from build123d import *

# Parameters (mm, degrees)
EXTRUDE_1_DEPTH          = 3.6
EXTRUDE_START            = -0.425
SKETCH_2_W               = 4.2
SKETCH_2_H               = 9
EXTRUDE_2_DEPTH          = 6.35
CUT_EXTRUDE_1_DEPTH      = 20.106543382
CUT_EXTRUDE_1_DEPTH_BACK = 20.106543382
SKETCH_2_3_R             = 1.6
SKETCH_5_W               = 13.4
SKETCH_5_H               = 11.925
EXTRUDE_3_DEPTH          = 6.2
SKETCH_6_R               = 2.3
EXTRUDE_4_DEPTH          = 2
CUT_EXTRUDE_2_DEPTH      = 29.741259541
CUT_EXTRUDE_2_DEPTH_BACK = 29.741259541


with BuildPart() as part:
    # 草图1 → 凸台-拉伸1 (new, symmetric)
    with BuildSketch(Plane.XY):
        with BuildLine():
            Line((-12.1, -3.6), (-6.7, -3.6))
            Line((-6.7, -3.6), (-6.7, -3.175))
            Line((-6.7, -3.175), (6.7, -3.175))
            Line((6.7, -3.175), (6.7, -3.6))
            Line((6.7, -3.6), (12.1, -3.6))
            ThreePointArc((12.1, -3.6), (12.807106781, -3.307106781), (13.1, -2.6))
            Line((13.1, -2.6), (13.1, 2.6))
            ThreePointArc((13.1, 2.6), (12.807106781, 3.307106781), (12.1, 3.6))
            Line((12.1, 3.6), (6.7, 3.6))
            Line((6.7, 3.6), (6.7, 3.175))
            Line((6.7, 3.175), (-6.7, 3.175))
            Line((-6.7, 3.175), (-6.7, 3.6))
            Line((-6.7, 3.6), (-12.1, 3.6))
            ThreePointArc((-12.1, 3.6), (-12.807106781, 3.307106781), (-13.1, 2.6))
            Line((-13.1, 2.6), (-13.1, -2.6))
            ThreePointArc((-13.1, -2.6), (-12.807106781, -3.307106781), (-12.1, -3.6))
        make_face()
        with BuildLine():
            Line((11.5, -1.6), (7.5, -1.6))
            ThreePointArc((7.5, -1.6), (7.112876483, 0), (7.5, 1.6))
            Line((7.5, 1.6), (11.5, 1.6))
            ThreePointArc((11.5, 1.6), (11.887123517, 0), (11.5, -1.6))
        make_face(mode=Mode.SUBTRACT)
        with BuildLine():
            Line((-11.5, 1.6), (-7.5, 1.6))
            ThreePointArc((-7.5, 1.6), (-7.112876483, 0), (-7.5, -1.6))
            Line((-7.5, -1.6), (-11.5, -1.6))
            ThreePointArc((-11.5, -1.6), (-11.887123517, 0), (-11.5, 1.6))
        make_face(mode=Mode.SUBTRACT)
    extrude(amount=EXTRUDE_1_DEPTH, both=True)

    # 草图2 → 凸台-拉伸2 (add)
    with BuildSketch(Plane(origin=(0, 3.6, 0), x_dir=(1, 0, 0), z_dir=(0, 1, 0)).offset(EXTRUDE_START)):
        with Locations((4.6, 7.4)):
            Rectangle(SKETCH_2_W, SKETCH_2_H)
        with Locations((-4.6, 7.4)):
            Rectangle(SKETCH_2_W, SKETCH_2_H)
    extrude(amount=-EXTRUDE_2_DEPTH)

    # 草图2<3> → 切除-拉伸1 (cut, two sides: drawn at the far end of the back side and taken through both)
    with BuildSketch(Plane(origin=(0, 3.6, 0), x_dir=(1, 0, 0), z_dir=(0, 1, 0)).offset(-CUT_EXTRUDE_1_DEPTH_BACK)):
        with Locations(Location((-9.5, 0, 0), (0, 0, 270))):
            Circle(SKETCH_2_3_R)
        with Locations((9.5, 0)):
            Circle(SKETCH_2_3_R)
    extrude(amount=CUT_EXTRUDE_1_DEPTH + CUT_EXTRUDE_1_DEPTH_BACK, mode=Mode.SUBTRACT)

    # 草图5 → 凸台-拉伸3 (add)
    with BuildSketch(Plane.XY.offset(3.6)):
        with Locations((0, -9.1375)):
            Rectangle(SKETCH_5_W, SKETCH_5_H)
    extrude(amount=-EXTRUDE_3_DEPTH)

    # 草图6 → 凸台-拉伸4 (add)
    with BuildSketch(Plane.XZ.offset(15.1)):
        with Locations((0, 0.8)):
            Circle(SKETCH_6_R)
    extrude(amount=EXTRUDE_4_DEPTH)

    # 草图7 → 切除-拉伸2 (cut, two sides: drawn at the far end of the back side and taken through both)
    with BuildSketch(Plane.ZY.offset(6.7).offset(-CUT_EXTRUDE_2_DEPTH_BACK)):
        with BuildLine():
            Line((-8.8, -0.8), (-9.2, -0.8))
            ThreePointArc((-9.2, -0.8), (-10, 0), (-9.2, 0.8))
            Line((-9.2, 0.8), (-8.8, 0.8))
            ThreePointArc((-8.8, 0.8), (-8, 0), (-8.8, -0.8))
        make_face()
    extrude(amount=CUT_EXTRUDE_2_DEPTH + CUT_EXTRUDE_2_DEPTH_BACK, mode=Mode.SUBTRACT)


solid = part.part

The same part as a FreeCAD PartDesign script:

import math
import FreeCAD as App
import Part
import Sketcher

V = App.Vector
Q = App.Units.Quantity

doc = App.newDocument("Part")
body = doc.addObject("PartDesign::Body", "Body")

# Sketch on XY plane
sketch1 = body.newObject("Sketcher::SketchObject", "Sketch")
sketch1.AttachmentSupport = (doc.getObject("XY_Plane"), [""])
sketch1.MapMode = "FlatFace"
sketch1.addGeometry([
    Part.LineSegment(V(-12.1, -3.6, 0), V(-6.7, -3.6, 0)),  # 0
    Part.LineSegment(V(-6.7, -3.6, 0), V(-6.7, -3.17, 0)),  # 1
    Part.LineSegment(V(-6.7, -3.17, 0), V(6.7, -3.17, 0)),  # 2
    Part.LineSegment(V(6.7, -3.17, 0), V(6.7, -3.6, 0)),  # 3
    Part.LineSegment(V(6.7, -3.6, 0), V(12.1, -3.6, 0)),  # 4
    Part.ArcOfCircle(Part.Circle(V(12.1, -2.6, 0), V(0, 0, 1), 1), math.radians(-90), math.radians(0)),  # 5
    Part.LineSegment(V(13.1, -2.6, 0), V(13.1, 2.6, 0)),  # 6
    Part.ArcOfCircle(Part.Circle(V(12.1, 2.6, 0), V(0, 0, 1), 1), math.radians(0), math.radians(90)),  # 7
    Part.LineSegment(V(12.1, 3.6, 0), V(6.7, 3.6, 0)),  # 8
    Part.LineSegment(V(6.7, 3.6, 0), V(6.7, 3.17, 0)),  # 9
    Part.LineSegment(V(6.7, 3.17, 0), V(-6.7, 3.17, 0)),  # 10
    Part.LineSegment(V(-6.7, 3.17, 0), V(-6.7, 3.6, 0)),  # 11
    Part.LineSegment(V(-6.7, 3.6, 0), V(-12.1, 3.6, 0)),  # 12
    Part.ArcOfCircle(Part.Circle(V(-12.1, 2.6, 0), V(0, 0, 1), 1), math.radians(90), math.radians(180)),  # 13
    Part.LineSegment(V(-13.1, 2.6, 0), V(-13.1, -2.6, 0)),  # 14
    Part.ArcOfCircle(Part.Circle(V(-12.1, -2.6, 0), V(0, 0, 1), 1), math.radians(-180), math.radians(-90)),  # 15
    Part.ArcOfCircle(Part.Circle(V(-8.39, 0, 0), V(0, 0, 1), 3.5), math.radians(153), math.radians(207)),  # 16
    Part.LineSegment(V(-11.5, 1.6, 0), V(-7.5, 1.6, 0)),  # 17
    Part.ArcOfCircle(Part.Circle(V(-10.61, 0, 0), V(0, 0, 1), 3.5), math.radians(-27), math.radians(27)),  # 18
    Part.LineSegment(V(-7.5, -1.6, 0), V(-11.5, -1.6, 0)),  # 19
    Part.ArcOfCircle(Part.Circle(V(8.39, 0, 0), V(0, 0, 1), 3.5), math.radians(-27), math.radians(27)),  # 20
    Part.LineSegment(V(11.5, -1.6, 0), V(7.5, -1.6, 0)),  # 21
    Part.ArcOfCircle(Part.Circle(V(10.61, 0, 0), V(0, 0, 1), 3.5), math.radians(153), math.radians(207)),  # 22
    Part.LineSegment(V(7.5, 1.6, 0), V(11.5, 1.6, 0)),  # 23
], False)
sketch1.addConstraint([
    Sketcher.Constraint("Coincident", 0, 2, 1, 1),
    Sketcher.Constraint("Coincident", 1, 2, 2, 1),
    Sketcher.Constraint("Coincident", 2, 2, 3, 1),
    Sketcher.Constraint("Coincident", 3, 2, 4, 1),
    Sketcher.Constraint("Tangent", 4, 2, 5, 1),
    Sketcher.Constraint("Tangent", 5, 2, 6, 1),
    Sketcher.Constraint("Tangent", 6, 2, 7, 1),
    Sketcher.Constraint("Tangent", 7, 2, 8, 1),
    Sketcher.Constraint("Coincident", 8, 2, 9, 1),
    Sketcher.Constraint("Coincident", 9, 2, 10, 1),
    Sketcher.Constraint("Coincident", 10, 2, 11, 1),
    Sketcher.Constraint("Coincident", 11, 2, 12, 1),
    Sketcher.Constraint("Tangent", 12, 2, 13, 1),
    Sketcher.Constraint("Tangent", 13, 2, 14, 1),
    Sketcher.Constraint("Tangent", 14, 2, 15, 1),
    Sketcher.Constraint("Tangent", 15, 2, 0, 1),
    Sketcher.Constraint("Coincident", 16, 1, 17, 1),
    Sketcher.Constraint("Coincident", 17, 2, 18, 2),
    Sketcher.Constraint("Coincident", 18, 1, 19, 1),
    Sketcher.Constraint("Coincident", 19, 2, 16, 2),
    Sketcher.Constraint("Coincident", 20, 1, 21, 1),
    Sketcher.Constraint("Coincident", 21, 2, 22, 2),
    Sketcher.Constraint("Coincident", 22, 1, 23, 1),
    Sketcher.Constraint("Coincident", 23, 2, 20, 2),
    Sketcher.Constraint("Horizontal", 0),
    Sketcher.Constraint("Vertical", 1),
    Sketcher.Constraint("Horizontal", 2),
    Sketcher.Constraint("Vertical", 3),
    Sketcher.Constraint("Horizontal", 4),
    Sketcher.Constraint("Vertical", 6),
    Sketcher.Constraint("Horizontal", 8),
    Sketcher.Constraint("Vertical", 9),
    Sketcher.Constraint("Horizontal", 10),
    Sketcher.Constraint("Vertical", 11),
    Sketcher.Constraint("Horizontal", 12),
    Sketcher.Constraint("Vertical", 14),
    Sketcher.Constraint("Horizontal", 17),
    Sketcher.Constraint("Horizontal", 19),
    Sketcher.Constraint("Horizontal", 21),
    Sketcher.Constraint("Horizontal", 23),
    Sketcher.Constraint("Equal", 5, 7),
    Sketcher.Constraint("Equal", 7, 13),
    Sketcher.Constraint("Equal", 13, 15),
    Sketcher.Constraint("Equal", 16, 18),
    Sketcher.Constraint("Equal", 18, 20),
    Sketcher.Constraint("Equal", 20, 22),
    Sketcher.Constraint("Symmetric", 5, 3, 13, 3, -1, 1),
    Sketcher.Constraint("Symmetric", 16, 3, 20, 3, -1, 1),
    Sketcher.Constraint("Symmetric", 18, 3, 22, 3, -1, 1),
    Sketcher.Constraint("Symmetric", 0, 2, 8, 2, -1, 1),
    Sketcher.Constraint("Symmetric", 2, 2, 10, 2, -1, 1),
    Sketcher.Constraint("Symmetric", 0, 2, 3, 2, -2),
    Sketcher.Constraint("Symmetric", 19, 2, 20, 1, -2),
    Sketcher.Constraint("Symmetric", 17, 2, 22, 1, -2),
    Sketcher.Constraint("Vertical", 17, 2, 18, 1),
    Sketcher.Constraint("Radius", 5, Q("1 mm")),
    Sketcher.Constraint("Radius", 16, Q("3.5 mm")),
    Sketcher.Constraint("DistanceX", 17, 1, 17, 2, Q("4 mm")),
    Sketcher.Constraint("DistanceX", 0, 1, 0, 2, Q("5.4 mm")),
    Sketcher.Constraint("DistanceX", 2, 1, 2, 2, Q("13.4 mm")),
    Sketcher.Constraint("DistanceY", 6, 1, 6, 2, Q("5.2 mm")),
    Sketcher.Constraint("DistanceX", 18, 3, 20, 3, Q("19 mm")),
    Sketcher.Constraint("DistanceY", 16, 1, 13, 3, Q("1 mm")),
    Sketcher.Constraint("DistanceY", 1, 1, 1, 2, Q("0.425 mm")),
])
pad1 = body.newObject("PartDesign::Pad", "Pad")
pad1.Profile = sketch1
pad1.Length = 7.2
pad1.Midplane = True

# Sketch on XZ plane
sketch2 = body.newObject("Sketcher::SketchObject", "Sketch001")
sketch2.AttachmentSupport = (doc.getObject("XZ_Plane"), [""])
sketch2.MapMode = "FlatFace"
sketch2.AttachmentOffset = App.Placement(V(0, 0, -3.175), App.Rotation())
sketch2.addGeometry([
    Part.LineSegment(V(2.5, -11.9, 0), V(2.5, -2.9, 0)),  # 0
    Part.LineSegment(V(2.5, -2.9, 0), V(6.7, -2.9, 0)),  # 1
    Part.LineSegment(V(6.7, -2.9, 0), V(6.7, -11.9, 0)),  # 2
    Part.LineSegment(V(6.7, -11.9, 0), V(2.5, -11.9, 0)),  # 3
    Part.LineSegment(V(-6.7, -11.9, 0), V(-6.7, -2.9, 0)),  # 4
    Part.LineSegment(V(-6.7, -2.9, 0), V(-2.5, -2.9, 0)),  # 5
    Part.LineSegment(V(-2.5, -2.9, 0), V(-2.5, -11.9, 0)),  # 6
    Part.LineSegment(V(-2.5, -11.9, 0), V(-6.7, -11.9, 0)),  # 7
], False)
sketch2.addConstraint([
    Sketcher.Constraint("Coincident", 0, 2, 1, 1),
    Sketcher.Constraint("Coincident", 1, 2, 2, 1),
    Sketcher.Constraint("Coincident", 2, 2, 3, 1),
    Sketcher.Constraint("Coincident", 3, 2, 0, 1),
    Sketcher.Constraint("Coincident", 4, 2, 5, 1),
    Sketcher.Constraint("Coincident", 5, 2, 6, 1),
    Sketcher.Constraint("Coincident", 6, 2, 7, 1),
    Sketcher.Constraint("Coincident", 7, 2, 4, 1),
    Sketcher.Constraint("Vertical", 0),
    Sketcher.Constraint("Horizontal", 1),
    Sketcher.Constraint("Vertical", 2),
    Sketcher.Constraint("Horizontal", 3),
    Sketcher.Constraint("Vertical", 4),
    Sketcher.Constraint("Horizontal", 5),
    Sketcher.Constraint("Vertical", 6),
    Sketcher.Constraint("Horizontal", 7),
    Sketcher.Constraint("Symmetric", 1, 2, 4, 2, -2),
    Sketcher.Constraint("Symmetric", 3, 2, 6, 2, -2),
    Sketcher.Constraint("DistanceY", 0, 1, 0, 2, Q("9 mm")),
    Sketcher.Constraint("DistanceX", 1, 1, 1, 2, Q("4.2 mm")),
    Sketcher.Constraint("DistanceX", 5, 2, 0, 2, Q("5 mm")),
    Sketcher.Constraint("DistanceY", 0, 2, -1, 1, Q("2.9 mm")),
])
pad2 = body.newObject("PartDesign::Pad", "Pad001")
pad2.Profile = sketch2
pad2.Length = 6.35

# Sketch on XZ plane
sketch3 = body.newObject("Sketcher::SketchObject", "Sketch002")
sketch3.AttachmentSupport = (doc.getObject("XZ_Plane"), [""])
sketch3.MapMode = "FlatFace"
sketch3.AttachmentOffset = App.Placement(V(0, 0, -3.6), App.Rotation())
sketch3.addGeometry([
    Part.Circle(V(-9.5, 0, 0), V(0, 0, 1), 1.6),
    Part.Circle(V(9.5, 0, 0), V(0, 0, 1), 1.6),
], False)
sketch3.addConstraint([
    Sketcher.Constraint("Equal", 0, 1),
    Sketcher.Constraint("Symmetric", 0, 3, 1, 3, -1, 1),
    Sketcher.Constraint("PointOnObject", 0, 3, -1),
    Sketcher.Constraint("Diameter", 0, Q("3.2 mm")),
    Sketcher.Constraint("DistanceX", 0, 3, 1, 3, Q("19 mm")),
])
pocket1 = body.newObject("PartDesign::Pocket", "Pocket")
pocket1.Profile = sketch3
pocket1.Type = "ThroughAll"
pocket1.Midplane = True

# Sketch on XY plane
sketch4 = body.newObject("Sketcher::SketchObject", "Sketch003")
sketch4.AttachmentSupport = (doc.getObject("XY_Plane"), [""])
sketch4.MapMode = "FlatFace"
sketch4.AttachmentOffset = App.Placement(V(0, 0, 3.6), App.Rotation())
sketch4.addGeometry([
    Part.LineSegment(V(-7, -3, 0), V(-7, -15, 0)),
    Part.LineSegment(V(-7, -15, 0), V(7, -15, 0)),
    Part.LineSegment(V(7, -15, 0), V(7, -3, 0)),
    Part.LineSegment(V(7, -3, 0), V(-7, -3, 0)),
], False)
sketch4.addConstraint([
    Sketcher.Constraint("Coincident", 0, 2, 1, 1),
    Sketcher.Constraint("Coincident", 1, 2, 2, 1),
    Sketcher.Constraint("Coincident", 2, 2, 3, 1),
    Sketcher.Constraint("Coincident", 3, 2, 0, 1),
    Sketcher.Constraint("Vertical", 0),
    Sketcher.Constraint("Horizontal", 1),
    Sketcher.Constraint("Vertical", 2),
    Sketcher.Constraint("Horizontal", 3),
    Sketcher.Constraint("DistanceX", 1, 1, 1, 2, Q("13.4 mm")),
    Sketcher.Constraint("DistanceX", 0, 2, -1, 1, Q("6.7 mm")),
    Sketcher.Constraint("DistanceY", 0, 2, -1, 1, Q("15.1 mm")),
    Sketcher.Constraint("DistanceY", 0, 2, 0, 1, Q("11.925 mm")),
])
pad3 = body.newObject("PartDesign::Pad", "Pad002")
pad3.Profile = sketch4
pad3.Length = 6.2
pad3.Reversed = True

# Sketch on XZ plane
sketch5 = body.newObject("Sketcher::SketchObject", "Sketch004")
sketch5.AttachmentSupport = (doc.getObject("XZ_Plane"), [""])
sketch5.MapMode = "FlatFace"
sketch5.AttachmentOffset = App.Placement(V(0, 0, 15.1), App.Rotation())
sketch5.addGeometry(Part.Circle(V(0, 0.8, 0), V(0, 0, 1), 2.3), False)
sketch5.addConstraint([
    Sketcher.Constraint("PointOnObject", 0, 3, -2),
    Sketcher.Constraint("Diameter", 0, Q("4.6 mm")),
    Sketcher.Constraint("DistanceY", -1, 1, 0, 3, Q("0.8 mm")),
])
pad4 = body.newObject("PartDesign::Pad", "Pad003")
pad4.Profile = sketch5
pad4.Length = 2

# Sketch on YZ plane
sketch6 = body.newObject("Sketcher::SketchObject", "Sketch005")
sketch6.AttachmentSupport = (doc.getObject("YZ_Plane"), [""])
sketch6.MapMode = "FlatFace"
sketch6.AttachmentOffset = App.Placement(V(0, 0, -6.7), App.Rotation())
sketch6.addGeometry([
    Part.LineSegment(V(-0.8, -9.2, 0), V(-0.8, -8.8, 0)),
    Part.ArcOfCircle(Part.Circle(V(0, -8.8, 0), V(0, 0, 1), 0.8), math.radians(0), math.radians(180)),
    Part.LineSegment(V(0.8, -8.8, 0), V(0.8, -9.2, 0)),
    Part.ArcOfCircle(Part.Circle(V(0, -9.2, 0), V(0, 0, 1), 0.8), math.radians(180), math.radians(360)),
], False)
sketch6.addConstraint([
    Sketcher.Constraint("Tangent", 0, 2, 1, 2),
    Sketcher.Constraint("Tangent", 1, 1, 2, 1),
    Sketcher.Constraint("Tangent", 2, 2, 3, 2),
    Sketcher.Constraint("Tangent", 3, 1, 0, 1),
    Sketcher.Constraint("Vertical", 0),
    Sketcher.Constraint("Vertical", 2),
    Sketcher.Constraint("PointOnObject", 1, 3, -2),
    Sketcher.Constraint("Radius", 1, Q("0.8 mm")),
    Sketcher.Constraint("DistanceY", 0, 1, 0, 2, Q("0.4 mm")),
    Sketcher.Constraint("DistanceY", 1, 3, -1, 1, Q("8.8 mm")),
])
pocket2 = body.newObject("PartDesign::Pocket", "Pocket001")
pocket2.Profile = sketch6
pocket2.Type = "ThroughAll"
pocket2.Midplane = True

doc.recompute()
